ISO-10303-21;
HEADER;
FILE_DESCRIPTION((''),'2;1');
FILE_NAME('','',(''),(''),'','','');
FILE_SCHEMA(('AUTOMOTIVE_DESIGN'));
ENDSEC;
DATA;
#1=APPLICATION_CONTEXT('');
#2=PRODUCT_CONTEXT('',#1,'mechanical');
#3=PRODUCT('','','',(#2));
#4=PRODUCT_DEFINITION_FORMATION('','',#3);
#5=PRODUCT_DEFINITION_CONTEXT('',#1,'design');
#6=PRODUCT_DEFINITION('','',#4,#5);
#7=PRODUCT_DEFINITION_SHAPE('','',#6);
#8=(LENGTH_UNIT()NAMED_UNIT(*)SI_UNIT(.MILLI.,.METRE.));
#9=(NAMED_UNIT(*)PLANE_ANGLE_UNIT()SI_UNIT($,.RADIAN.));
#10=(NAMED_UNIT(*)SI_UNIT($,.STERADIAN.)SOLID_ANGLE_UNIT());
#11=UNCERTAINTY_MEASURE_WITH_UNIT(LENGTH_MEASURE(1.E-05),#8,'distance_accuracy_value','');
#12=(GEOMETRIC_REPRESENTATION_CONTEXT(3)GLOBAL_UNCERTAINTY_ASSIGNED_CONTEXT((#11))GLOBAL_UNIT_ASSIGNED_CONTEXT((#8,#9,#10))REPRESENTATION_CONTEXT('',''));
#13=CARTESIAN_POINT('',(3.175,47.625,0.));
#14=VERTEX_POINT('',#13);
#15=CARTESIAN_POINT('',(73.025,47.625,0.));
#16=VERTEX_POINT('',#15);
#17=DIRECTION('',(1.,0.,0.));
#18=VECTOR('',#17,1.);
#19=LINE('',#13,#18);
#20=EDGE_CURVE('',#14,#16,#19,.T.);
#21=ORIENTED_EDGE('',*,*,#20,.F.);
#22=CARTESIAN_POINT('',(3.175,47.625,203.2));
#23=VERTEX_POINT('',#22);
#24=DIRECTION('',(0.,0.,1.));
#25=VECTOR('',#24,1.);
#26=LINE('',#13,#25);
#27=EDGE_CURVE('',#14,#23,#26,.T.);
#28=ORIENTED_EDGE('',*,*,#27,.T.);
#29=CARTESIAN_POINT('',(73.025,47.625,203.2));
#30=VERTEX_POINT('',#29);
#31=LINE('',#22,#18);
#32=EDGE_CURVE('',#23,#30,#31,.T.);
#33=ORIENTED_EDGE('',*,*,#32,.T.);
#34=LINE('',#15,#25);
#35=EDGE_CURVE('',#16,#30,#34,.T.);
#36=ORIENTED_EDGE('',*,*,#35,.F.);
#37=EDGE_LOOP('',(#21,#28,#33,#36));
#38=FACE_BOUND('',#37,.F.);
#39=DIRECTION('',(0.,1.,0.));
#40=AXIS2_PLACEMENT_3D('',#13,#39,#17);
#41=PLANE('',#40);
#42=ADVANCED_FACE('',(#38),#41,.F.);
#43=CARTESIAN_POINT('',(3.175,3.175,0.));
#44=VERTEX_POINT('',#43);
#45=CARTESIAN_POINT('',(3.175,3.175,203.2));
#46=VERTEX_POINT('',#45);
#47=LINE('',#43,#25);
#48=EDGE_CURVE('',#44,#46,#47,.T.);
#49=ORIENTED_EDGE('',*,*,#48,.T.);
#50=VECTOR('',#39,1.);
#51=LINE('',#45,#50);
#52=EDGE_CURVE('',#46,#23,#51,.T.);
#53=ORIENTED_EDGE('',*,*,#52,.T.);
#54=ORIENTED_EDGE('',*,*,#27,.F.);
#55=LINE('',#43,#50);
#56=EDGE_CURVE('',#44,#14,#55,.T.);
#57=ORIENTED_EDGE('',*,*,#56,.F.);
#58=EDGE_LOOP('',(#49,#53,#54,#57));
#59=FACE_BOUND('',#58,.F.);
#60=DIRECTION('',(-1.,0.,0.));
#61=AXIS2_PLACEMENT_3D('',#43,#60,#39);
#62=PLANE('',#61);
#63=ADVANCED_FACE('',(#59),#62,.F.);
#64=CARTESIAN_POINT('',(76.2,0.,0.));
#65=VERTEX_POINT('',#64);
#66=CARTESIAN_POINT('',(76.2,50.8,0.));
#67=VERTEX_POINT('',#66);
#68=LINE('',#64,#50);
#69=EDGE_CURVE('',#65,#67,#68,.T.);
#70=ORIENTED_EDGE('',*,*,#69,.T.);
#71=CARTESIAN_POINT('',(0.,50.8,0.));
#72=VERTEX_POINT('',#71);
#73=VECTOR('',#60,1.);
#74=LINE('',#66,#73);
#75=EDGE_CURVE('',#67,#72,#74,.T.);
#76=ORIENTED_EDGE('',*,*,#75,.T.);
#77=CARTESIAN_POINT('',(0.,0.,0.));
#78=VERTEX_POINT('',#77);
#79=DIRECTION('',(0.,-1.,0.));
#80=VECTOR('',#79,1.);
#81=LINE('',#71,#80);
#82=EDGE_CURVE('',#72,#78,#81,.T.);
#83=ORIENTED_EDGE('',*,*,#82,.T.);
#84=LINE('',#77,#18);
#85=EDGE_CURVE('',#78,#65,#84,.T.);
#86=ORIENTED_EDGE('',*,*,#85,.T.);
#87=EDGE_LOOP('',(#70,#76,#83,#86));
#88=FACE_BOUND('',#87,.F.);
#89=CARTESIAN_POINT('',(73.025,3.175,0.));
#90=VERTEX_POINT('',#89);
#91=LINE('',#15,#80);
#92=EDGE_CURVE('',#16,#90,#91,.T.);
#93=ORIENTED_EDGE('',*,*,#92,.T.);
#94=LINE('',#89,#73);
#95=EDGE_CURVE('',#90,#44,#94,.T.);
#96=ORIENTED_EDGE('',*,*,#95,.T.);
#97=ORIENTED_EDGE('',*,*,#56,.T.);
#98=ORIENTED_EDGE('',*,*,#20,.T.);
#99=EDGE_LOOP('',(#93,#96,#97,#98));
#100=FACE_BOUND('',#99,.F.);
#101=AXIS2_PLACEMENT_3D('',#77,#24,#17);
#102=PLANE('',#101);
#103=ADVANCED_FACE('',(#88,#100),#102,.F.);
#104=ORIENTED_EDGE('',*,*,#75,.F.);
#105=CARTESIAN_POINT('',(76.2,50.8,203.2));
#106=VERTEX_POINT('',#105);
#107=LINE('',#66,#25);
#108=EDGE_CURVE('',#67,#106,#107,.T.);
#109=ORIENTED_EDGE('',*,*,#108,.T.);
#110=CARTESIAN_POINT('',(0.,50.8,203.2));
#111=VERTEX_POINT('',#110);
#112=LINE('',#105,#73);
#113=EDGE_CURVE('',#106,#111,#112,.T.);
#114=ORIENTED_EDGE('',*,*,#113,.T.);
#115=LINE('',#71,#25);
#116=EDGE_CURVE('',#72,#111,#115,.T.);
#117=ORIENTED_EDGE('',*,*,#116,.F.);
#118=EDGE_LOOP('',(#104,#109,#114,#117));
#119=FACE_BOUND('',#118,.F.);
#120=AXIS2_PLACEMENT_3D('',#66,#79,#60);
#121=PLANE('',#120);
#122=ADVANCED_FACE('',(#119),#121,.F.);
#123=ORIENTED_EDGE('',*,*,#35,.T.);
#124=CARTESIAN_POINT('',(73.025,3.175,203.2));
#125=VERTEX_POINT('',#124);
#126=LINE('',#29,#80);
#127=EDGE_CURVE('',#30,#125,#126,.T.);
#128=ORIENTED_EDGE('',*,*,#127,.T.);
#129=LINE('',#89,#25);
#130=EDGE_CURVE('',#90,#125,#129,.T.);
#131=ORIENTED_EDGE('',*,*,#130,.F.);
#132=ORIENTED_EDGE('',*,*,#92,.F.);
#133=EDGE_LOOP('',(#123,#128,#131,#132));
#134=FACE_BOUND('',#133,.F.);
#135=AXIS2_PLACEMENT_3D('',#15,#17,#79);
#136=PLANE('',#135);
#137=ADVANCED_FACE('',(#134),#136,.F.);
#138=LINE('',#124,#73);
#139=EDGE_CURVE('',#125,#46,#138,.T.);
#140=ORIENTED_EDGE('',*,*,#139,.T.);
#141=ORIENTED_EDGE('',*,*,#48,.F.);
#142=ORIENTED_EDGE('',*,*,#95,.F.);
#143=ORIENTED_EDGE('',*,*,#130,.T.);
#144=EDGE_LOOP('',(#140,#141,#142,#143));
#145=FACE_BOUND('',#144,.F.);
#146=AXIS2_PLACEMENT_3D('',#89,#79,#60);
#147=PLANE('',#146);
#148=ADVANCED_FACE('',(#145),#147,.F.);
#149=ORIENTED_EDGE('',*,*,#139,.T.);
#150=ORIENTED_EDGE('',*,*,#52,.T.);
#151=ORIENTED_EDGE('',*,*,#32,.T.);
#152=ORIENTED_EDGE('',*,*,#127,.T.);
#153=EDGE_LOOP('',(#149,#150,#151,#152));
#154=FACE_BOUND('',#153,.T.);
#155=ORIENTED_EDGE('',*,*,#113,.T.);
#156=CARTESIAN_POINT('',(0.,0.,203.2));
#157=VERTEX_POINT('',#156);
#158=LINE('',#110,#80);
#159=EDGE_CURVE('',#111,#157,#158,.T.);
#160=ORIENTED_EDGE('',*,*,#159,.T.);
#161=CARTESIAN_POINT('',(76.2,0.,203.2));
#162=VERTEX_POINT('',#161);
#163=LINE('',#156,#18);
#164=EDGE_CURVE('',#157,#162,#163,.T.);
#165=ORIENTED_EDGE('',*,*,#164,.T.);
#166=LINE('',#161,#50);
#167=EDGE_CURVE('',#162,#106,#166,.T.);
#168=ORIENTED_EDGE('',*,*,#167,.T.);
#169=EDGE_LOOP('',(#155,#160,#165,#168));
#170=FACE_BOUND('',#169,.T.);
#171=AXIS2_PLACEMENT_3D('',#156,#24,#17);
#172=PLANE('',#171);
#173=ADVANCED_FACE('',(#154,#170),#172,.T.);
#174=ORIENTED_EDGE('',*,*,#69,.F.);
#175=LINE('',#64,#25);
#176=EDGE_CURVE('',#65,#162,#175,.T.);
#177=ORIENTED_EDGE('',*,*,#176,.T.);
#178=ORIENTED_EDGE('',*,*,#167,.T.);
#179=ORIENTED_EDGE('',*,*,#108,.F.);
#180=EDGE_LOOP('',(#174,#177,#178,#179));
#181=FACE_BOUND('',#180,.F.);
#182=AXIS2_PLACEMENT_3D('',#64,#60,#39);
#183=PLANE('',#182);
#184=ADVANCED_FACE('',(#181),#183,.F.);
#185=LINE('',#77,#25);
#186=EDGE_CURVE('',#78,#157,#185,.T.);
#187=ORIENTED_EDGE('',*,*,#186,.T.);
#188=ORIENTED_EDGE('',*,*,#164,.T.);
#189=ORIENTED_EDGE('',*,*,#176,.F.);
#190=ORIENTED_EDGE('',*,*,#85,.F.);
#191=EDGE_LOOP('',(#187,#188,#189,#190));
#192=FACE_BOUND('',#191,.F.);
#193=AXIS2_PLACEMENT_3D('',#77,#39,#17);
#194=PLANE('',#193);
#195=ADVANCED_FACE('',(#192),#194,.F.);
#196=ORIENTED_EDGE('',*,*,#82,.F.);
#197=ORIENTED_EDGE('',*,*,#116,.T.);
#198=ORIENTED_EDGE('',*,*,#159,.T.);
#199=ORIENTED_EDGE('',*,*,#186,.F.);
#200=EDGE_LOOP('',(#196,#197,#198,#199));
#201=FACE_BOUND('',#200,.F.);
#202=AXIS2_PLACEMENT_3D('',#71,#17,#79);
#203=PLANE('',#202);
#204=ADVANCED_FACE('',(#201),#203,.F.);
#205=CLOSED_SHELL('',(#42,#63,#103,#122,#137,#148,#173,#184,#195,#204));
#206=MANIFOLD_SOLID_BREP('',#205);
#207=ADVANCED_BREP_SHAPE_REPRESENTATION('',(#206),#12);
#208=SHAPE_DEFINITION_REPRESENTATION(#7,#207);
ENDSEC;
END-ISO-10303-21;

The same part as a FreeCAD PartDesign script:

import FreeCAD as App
import Part
import Sketcher

V = App.Vector
Q = App.Units.Quantity

doc = App.newDocument("Part")
params = doc.addObject("Spreadsheet::Sheet", "Params")
for row, (alias, value) in enumerate([
    ("sketch1_width", "3 in"),
    ("sketch1_height", "2 in"),
    ("pad1_length", "8 in"),
], start=1):
    params.set(f"A{row}", alias)
    params.set(f"B{row}", "=" + value)
    params.setAlias(f"B{row}", alias)

body = doc.addObject("PartDesign::Body", "Body")

sketch1 = doc.addObject("Sketcher::SketchObject", "Sketch")
body.addObject(sketch1)
sketch1.AttachmentSupport = (doc.XY_Plane, [""])
sketch1.MapMode = "FlatFace"
sketch1.addGeometry(Part.LineSegment(V(0, 51, 0), V(0, 0, 0)), False)
sketch1.addGeometry(Part.LineSegment(V(0, 0, 0), V(76, 0, 0)), False)
sketch1.addGeometry(Part.LineSegment(V(76, 0, 0), V(76, 51, 0)), False)
sketch1.addGeometry(Part.LineSegment(V(76, 51, 0), V(0, 51, 0)), False)
sketch1.addGeometry(Part.LineSegment(V(3, 3, 0), V(3, 48, 0)), False)
sketch1.addGeometry(Part.LineSegment(V(3, 48, 0), V(73, 48, 0)), False)
sketch1.addGeometry(Part.LineSegment(V(73, 48, 0), V(73, 3, 0)), False)
sketch1.addGeometry(Part.LineSegment(V(73, 3, 0), V(3, 3, 0)), False)
sketch1.addConstraint(Sketcher.Constraint("Coincident", 0, 2, 1, 1))
sketch1.addConstraint(Sketcher.Constraint("Coincident", 1, 2, 2, 1))
sketch1.addConstraint(Sketcher.Constraint("Coincident", 2, 2, 3, 1))
sketch1.addConstraint(Sketcher.Constraint("Coincident", 3, 2, 0, 1))
sketch1.addConstraint(Sketcher.Constraint("Coincident", 4, 2, 5, 1))
sketch1.addConstraint(Sketcher.Constraint("Coincident", 5, 2, 6, 1))
sketch1.addConstraint(Sketcher.Constraint("Coincident", 6, 2, 7, 1))
sketch1.addConstraint(Sketcher.Constraint("Coincident", 7, 2, 4, 1))
sketch1.addConstraint(Sketcher.Constraint("Vertical", 0))
sketch1.addConstraint(Sketcher.Constraint("Horizontal", 1))
sketch1.addConstraint(Sketcher.Constraint("Vertical", 2))
sketch1.addConstraint(Sketcher.Constraint("Horizontal", 3))
sketch1.addConstraint(Sketcher.Constraint("Vertical", 4))
sketch1.addConstraint(Sketcher.Constraint("Horizontal", 5))
sketch1.addConstraint(Sketcher.Constraint("Vertical", 6))
sketch1.addConstraint(Sketcher.Constraint("Horizontal", 7))
sketch1.addConstraint(Sketcher.Constraint("Coincident", 0, 2, -1, 1))
sketch1.addConstraint(Sketcher.Constraint("DistanceX", 1, 1, 1, 2, Q("3 in")))
sketch1.addConstraint(Sketcher.Constraint("DistanceY", 0, 2, 0, 1, Q("2 in")))
sketch1.addConstraint(Sketcher.Constraint("DistanceX", -1, 1, 4, 2, Q("0.125 in")))
sketch1.addConstraint(Sketcher.Constraint("DistanceY", -1, 1, 6, 2, Q("0.125 in")))
sketch1.addConstraint(Sketcher.Constraint("DistanceY", 4, 2, 3, 2, Q("0.125 in")))
sketch1.addConstraint(Sketcher.Constraint("DistanceX", 5, 2, 2, 2, Q("0.125 in")))
sketch1.setExpression("Constraints[17]", "Params.sketch1_width")
sketch1.setExpression("Constraints[18]", "Params.sketch1_height")
pad1 = doc.addObject("PartDesign::Pad", "Pad")
body.addObject(pad1)
pad1.Profile = sketch1
pad1.setExpression("Length", "Params.pad1_length")

doc.recompute()
